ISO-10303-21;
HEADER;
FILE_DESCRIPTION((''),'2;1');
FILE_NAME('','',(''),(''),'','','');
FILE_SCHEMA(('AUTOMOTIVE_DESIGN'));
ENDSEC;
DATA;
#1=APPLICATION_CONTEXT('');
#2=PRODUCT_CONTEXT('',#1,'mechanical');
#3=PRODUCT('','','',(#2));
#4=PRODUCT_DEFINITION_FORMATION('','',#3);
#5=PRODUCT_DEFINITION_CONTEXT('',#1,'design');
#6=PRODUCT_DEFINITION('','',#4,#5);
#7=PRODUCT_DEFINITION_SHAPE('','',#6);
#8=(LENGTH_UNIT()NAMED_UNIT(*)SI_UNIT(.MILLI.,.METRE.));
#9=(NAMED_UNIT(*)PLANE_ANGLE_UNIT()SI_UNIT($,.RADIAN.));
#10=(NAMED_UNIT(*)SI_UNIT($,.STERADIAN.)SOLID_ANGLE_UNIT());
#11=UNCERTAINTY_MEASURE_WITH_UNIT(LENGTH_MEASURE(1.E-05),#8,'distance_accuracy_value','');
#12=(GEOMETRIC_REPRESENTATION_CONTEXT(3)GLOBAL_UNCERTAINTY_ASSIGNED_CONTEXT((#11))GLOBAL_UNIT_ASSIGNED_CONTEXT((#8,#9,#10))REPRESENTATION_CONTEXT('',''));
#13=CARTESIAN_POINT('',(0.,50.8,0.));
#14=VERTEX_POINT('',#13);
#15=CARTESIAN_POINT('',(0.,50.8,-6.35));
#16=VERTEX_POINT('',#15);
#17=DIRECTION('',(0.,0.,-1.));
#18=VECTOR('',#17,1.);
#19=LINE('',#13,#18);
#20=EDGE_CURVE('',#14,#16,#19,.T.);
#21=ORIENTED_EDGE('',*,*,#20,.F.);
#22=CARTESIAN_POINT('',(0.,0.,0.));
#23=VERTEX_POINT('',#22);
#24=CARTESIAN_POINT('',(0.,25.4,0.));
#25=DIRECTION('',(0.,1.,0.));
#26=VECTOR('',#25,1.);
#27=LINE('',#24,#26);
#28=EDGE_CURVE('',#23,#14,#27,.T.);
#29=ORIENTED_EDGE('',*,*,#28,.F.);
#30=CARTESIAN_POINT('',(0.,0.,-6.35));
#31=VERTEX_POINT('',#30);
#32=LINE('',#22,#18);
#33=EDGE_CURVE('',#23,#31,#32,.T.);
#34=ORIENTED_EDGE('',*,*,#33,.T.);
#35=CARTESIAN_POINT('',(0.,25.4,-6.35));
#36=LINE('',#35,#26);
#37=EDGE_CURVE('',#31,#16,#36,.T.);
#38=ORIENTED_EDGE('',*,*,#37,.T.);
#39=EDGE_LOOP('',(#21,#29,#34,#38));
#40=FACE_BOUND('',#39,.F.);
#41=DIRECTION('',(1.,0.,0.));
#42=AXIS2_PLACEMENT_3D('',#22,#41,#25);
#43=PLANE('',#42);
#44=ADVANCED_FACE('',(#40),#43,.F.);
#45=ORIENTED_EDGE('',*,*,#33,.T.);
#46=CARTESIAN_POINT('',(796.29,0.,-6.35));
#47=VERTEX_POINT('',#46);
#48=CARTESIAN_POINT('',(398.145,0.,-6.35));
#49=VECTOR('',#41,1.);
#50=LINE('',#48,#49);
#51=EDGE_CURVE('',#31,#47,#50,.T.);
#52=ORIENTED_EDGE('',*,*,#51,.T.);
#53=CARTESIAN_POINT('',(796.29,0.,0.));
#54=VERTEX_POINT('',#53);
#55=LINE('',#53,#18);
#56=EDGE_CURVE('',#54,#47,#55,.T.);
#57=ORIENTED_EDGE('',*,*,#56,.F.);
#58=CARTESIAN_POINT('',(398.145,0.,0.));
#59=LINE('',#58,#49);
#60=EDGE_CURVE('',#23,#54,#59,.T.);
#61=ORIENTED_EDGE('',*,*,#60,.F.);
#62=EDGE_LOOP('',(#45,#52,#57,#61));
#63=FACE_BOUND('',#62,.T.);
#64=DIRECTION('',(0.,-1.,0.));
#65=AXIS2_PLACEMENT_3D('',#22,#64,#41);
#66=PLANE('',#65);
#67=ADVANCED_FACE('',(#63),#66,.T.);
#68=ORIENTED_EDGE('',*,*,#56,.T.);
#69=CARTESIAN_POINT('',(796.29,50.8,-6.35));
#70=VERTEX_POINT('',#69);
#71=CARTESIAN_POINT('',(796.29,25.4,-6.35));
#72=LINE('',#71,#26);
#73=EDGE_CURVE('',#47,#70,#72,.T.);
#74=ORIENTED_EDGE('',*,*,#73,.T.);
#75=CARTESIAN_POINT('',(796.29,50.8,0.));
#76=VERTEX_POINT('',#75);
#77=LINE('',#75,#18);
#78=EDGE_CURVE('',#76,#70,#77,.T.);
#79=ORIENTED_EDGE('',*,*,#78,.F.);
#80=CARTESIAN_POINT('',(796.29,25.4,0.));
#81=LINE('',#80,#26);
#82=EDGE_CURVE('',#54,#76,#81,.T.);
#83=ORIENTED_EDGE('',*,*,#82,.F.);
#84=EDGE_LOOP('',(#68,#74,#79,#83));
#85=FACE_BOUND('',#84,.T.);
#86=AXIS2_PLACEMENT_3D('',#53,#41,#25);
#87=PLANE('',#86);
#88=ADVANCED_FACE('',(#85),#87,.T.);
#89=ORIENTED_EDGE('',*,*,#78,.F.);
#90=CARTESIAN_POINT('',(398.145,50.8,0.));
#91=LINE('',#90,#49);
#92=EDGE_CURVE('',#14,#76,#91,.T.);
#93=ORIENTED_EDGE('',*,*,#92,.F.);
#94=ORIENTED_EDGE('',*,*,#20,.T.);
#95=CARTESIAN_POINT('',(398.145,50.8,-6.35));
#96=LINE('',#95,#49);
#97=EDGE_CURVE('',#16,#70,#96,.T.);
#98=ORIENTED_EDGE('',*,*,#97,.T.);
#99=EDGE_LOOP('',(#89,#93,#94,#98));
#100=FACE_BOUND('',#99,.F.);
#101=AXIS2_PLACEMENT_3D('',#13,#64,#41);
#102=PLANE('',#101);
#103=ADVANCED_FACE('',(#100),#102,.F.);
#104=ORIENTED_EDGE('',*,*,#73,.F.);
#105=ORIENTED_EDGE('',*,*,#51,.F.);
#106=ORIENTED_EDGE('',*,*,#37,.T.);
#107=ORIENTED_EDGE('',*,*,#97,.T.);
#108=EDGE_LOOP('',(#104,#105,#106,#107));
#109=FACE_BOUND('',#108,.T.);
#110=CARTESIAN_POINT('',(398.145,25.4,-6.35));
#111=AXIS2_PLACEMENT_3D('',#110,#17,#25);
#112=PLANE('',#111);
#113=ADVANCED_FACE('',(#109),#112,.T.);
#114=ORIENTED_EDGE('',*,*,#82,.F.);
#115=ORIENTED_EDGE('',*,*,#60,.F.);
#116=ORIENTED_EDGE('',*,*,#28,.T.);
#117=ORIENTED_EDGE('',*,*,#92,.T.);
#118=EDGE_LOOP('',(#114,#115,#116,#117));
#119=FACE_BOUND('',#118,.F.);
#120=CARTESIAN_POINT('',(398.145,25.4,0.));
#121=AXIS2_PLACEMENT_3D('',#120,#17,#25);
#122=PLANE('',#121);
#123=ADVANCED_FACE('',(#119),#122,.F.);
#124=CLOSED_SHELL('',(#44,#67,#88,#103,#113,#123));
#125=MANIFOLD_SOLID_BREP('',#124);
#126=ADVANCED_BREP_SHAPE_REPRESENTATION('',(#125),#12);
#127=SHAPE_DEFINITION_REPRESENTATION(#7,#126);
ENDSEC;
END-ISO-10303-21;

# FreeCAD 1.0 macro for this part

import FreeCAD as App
import Part
import Sketcher

V = App.Vector
Q = App.Units.Quantity


def add_polygon(sketch, points):
    """Adds a closed chain of lines whose ends are joined by coincident constraints."""
    first, n = sketch.GeometryCount, len(points)
    for a, b in zip(points, points[1:] + points[:1]):
        sketch.addGeometry(Part.LineSegment(App.Vector(*a, 0), App.Vector(*b, 0)), False)
    for i in range(n):
        sketch.addConstraint(Sketcher.Constraint("Coincident", first + i, 2, first + (i + 1) % n, 1))

doc = App.newDocument("Part")
body = doc.addObject("PartDesign::Body", "Body")

sketch1 = body.newObject("Sketcher::SketchObject", "Sketch")
sketch1.AttachmentSupport = (doc.getObject("YZ_Plane"), [""])
sketch1.MapMode = "FlatFace"
add_polygon(sketch1, [(0, 796), (0, 0), (51, 0), (51, 796)])
sketch1.addConstraint(Sketcher.Constraint("Vertical", 0))
sketch1.addConstraint(Sketcher.Constraint("Horizontal", 1))
sketch1.addConstraint(Sketcher.Constraint("Vertical", 2))
sketch1.addConstraint(Sketcher.Constraint("Horizontal", 3))
sketch1.addConstraint(Sketcher.Constraint("Coincident", 0, 2, -1, 1))
sketch1.addConstraint(Sketcher.Constraint("DistanceX", 1, 1, 1, 2, Q("2 in")))
sketch1.addConstraint(Sketcher.Constraint("DistanceY", 0, 2, 0, 1, Q("31.35 in")))
pad1 = body.newObject("PartDesign::Pad", "Pad")
pad1.Profile = sketch1
pad1.Length = Q("0.25 in")
body2 = doc.addObject("PartDesign::Body", "Body001")
doc.recompute()

body.Placement = App.Placement(V(0, 0, 0), App.Rotation(V(0, 1, 0), 90))
boolean = body2.newObject("PartDesign::Boolean", "Boolean")
boolean.Type = "Fuse"
boolean.addObjects([body])

doc.recompute()
